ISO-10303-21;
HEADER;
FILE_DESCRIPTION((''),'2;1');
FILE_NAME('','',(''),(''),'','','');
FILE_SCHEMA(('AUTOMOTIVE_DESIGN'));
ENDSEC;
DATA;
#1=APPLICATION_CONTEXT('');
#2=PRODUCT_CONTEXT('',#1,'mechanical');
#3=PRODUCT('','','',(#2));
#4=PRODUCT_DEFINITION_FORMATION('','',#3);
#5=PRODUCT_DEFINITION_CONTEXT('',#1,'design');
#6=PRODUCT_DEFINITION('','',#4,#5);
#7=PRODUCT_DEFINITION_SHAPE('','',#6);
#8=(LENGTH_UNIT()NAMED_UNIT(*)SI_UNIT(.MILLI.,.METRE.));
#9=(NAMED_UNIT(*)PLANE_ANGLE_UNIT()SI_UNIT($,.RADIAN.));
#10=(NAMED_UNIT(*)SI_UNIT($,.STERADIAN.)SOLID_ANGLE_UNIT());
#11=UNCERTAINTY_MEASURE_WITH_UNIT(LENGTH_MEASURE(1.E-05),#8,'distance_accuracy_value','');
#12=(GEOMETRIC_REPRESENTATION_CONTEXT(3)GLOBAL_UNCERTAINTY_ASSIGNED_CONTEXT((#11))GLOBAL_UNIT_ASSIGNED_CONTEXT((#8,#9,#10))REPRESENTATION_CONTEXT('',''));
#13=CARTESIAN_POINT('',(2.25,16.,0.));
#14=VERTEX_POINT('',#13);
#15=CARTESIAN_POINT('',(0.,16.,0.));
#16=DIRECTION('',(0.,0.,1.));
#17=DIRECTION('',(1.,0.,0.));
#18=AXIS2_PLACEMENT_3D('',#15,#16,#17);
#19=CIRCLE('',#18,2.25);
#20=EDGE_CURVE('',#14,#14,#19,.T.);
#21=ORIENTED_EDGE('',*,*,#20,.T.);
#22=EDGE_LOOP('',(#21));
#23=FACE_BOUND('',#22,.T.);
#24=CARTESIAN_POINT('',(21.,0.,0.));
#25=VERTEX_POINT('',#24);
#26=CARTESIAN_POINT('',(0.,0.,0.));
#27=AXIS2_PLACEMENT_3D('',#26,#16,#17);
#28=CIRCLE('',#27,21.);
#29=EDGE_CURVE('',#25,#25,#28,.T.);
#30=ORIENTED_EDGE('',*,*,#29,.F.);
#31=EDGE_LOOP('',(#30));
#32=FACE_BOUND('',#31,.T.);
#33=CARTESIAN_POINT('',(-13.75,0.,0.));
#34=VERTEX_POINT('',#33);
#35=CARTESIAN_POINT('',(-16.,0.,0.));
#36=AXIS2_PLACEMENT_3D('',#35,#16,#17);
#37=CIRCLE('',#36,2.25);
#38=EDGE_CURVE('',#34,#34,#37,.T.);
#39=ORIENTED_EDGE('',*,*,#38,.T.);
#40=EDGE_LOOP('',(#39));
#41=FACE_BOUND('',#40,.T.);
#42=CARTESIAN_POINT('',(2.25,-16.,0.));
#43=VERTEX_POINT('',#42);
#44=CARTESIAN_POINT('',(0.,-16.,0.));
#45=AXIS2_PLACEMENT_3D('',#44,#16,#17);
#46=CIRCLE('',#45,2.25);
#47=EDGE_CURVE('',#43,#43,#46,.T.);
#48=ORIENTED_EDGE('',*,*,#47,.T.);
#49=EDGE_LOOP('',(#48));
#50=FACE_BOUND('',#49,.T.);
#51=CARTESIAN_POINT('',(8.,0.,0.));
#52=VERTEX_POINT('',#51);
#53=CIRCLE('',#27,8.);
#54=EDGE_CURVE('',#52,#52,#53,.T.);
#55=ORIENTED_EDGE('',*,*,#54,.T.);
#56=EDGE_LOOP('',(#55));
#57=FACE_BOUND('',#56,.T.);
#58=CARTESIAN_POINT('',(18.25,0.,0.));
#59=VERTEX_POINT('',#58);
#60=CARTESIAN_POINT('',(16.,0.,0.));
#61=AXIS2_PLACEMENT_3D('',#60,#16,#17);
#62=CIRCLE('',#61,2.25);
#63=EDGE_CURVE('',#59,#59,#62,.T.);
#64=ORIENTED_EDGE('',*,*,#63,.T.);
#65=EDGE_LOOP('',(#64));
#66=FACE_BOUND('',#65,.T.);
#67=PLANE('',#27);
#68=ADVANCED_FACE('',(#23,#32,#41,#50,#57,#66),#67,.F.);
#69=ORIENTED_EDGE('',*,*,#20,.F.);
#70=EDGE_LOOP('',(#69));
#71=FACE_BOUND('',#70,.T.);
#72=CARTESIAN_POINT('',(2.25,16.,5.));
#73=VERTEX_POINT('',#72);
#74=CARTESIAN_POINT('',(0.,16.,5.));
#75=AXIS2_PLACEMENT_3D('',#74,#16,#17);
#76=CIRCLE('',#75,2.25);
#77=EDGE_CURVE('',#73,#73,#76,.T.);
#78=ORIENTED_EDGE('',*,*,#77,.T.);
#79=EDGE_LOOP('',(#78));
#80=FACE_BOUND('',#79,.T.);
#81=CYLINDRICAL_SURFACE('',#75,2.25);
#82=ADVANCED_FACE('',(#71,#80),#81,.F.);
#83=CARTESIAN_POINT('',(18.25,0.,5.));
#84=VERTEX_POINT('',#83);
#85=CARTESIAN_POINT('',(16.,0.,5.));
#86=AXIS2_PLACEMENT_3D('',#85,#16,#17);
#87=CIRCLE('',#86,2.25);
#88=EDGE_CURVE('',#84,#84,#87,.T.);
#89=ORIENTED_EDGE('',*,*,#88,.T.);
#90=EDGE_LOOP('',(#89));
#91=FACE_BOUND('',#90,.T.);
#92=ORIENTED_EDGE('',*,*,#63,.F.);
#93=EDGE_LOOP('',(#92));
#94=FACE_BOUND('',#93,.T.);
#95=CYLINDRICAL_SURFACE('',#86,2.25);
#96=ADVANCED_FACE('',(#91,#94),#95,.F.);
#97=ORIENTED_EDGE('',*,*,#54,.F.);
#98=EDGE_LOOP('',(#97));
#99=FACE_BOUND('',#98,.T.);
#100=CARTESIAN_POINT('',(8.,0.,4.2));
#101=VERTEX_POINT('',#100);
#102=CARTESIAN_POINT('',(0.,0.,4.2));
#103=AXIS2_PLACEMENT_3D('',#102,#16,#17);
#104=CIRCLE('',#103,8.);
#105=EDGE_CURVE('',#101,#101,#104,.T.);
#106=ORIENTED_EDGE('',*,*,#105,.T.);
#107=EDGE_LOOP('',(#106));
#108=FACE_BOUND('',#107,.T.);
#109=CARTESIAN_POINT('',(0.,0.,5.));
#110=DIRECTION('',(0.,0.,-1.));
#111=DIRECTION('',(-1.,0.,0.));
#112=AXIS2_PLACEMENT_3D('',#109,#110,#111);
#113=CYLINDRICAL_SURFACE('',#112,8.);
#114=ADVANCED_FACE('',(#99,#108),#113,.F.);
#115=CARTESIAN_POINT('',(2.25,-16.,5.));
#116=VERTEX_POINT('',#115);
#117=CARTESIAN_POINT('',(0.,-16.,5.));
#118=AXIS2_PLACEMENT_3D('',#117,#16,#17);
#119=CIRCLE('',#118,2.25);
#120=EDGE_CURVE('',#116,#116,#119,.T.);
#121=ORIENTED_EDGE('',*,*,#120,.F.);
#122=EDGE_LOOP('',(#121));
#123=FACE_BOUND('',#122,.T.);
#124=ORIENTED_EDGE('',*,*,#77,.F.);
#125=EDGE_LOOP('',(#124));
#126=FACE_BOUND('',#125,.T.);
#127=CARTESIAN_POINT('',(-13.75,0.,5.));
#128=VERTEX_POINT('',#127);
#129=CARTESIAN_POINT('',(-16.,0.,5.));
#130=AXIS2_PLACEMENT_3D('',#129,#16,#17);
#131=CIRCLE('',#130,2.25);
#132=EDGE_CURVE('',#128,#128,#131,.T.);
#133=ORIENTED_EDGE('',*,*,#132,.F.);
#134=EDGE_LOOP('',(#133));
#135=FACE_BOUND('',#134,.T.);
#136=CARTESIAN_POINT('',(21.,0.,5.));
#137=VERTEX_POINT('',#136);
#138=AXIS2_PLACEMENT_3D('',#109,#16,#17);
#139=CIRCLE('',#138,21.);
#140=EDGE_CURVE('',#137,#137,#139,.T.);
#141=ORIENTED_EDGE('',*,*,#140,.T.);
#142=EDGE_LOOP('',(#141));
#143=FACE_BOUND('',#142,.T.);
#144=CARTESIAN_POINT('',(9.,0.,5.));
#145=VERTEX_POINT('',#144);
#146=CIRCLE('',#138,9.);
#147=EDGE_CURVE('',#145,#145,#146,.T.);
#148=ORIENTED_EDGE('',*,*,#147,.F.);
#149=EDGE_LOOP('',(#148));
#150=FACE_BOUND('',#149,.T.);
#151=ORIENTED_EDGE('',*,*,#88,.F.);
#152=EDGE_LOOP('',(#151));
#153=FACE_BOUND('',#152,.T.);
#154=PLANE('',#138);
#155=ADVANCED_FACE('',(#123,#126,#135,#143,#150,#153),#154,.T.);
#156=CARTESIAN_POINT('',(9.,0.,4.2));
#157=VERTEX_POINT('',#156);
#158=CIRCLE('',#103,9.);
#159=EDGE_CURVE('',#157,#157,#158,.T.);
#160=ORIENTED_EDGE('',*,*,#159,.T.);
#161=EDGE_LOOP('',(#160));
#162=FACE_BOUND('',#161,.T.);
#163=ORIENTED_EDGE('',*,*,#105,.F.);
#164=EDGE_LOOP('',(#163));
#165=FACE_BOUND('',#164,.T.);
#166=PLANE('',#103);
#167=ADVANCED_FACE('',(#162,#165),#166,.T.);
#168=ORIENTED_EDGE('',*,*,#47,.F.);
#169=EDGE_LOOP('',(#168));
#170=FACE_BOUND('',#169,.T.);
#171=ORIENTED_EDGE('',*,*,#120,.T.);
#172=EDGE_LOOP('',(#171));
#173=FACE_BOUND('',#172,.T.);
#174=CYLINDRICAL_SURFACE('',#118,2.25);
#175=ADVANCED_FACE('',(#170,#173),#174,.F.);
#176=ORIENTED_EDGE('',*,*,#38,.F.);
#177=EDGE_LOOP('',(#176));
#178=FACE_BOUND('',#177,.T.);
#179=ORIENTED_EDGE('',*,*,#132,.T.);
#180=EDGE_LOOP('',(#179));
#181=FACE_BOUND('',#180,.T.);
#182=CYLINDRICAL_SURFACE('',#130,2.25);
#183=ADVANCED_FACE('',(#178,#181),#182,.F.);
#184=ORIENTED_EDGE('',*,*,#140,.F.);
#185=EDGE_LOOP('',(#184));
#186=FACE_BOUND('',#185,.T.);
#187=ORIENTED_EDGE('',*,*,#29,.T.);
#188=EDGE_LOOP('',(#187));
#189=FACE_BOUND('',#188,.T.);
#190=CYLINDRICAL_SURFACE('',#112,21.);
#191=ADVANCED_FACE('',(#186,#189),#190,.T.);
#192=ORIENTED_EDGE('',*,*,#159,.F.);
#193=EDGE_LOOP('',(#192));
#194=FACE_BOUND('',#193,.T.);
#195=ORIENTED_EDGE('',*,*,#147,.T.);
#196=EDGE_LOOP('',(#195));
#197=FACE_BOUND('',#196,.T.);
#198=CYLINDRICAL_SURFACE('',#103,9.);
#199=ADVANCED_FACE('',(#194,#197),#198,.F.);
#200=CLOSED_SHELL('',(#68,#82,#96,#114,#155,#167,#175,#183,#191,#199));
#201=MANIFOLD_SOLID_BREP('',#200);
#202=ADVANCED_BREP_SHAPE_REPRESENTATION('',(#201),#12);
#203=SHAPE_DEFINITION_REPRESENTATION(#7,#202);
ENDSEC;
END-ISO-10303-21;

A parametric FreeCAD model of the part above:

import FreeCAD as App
import Part
import Sketcher
Q = App.Units.Quantity

doc = App.newDocument("Part")
body = doc.addObject("PartDesign::Body", "Body")

sketch1 = doc.addObject("Sketcher::SketchObject", "Sketch")
body.addObject(sketch1)
sketch1.AttachmentSupport = (doc.XY_Plane, [""])
sketch1.MapMode = "FlatFace"
sketch1.addGeometry([
    Part.Circle(App.Vector(0, 0, 0), App.Vector(0, 0, 1), 21),
    Part.Circle(App.Vector(0, 0, 0), App.Vector(0, 0, 1), 8),
], False)
sketch1.addConstraint([
    Sketcher.Constraint("Coincident", 0, 3, -1, 1),
    Sketcher.Constraint("Coincident", 1, 3, -1, 1),
    Sketcher.Constraint("Diameter", 0, Q("42 mm")),
    Sketcher.Constraint("Diameter", 1, Q("16 mm")),
])
pad1 = doc.addObject("PartDesign::Pad", "Pad")
body.addObject(pad1)
pad1.Profile = sketch1
pad1.Length = 5

sketch2 = doc.addObject("Sketcher::SketchObject", "Sketch001")
body.addObject(sketch2)
sketch2.AttachmentSupport = (doc.XY_Plane, [""])
sketch2.MapMode = "FlatFace"
sketch2.AttachmentOffset = App.Placement(App.Vector(0, 0, 5), App.Rotation())
sketch2.addGeometry([
    Part.Circle(App.Vector(0, 16, 0), App.Vector(0, 0, 1), 2.25),
    Part.Circle(App.Vector(-16, 0, 0), App.Vector(0, 0, 1), 2.25),
    Part.Circle(App.Vector(0, -16, 0), App.Vector(0, 0, 1), 2.25),
    Part.Circle(App.Vector(16, 0, 0), App.Vector(0, 0, 1), 2.25),
], False)
sketch2.addConstraint([
    Sketcher.Constraint("Equal", 0, 1),
    Sketcher.Constraint("Equal", 1, 2),
    Sketcher.Constraint("Equal", 2, 3),
    Sketcher.Constraint("Symmetric", 0, 3, 2, 3, -1, 1),
    Sketcher.Constraint("Symmetric", 1, 3, 3, 3, -1, 1),
    Sketcher.Constraint("PointOnObject", 0, 3, -2),
    Sketcher.Constraint("PointOnObject", 1, 3, -1),
    Sketcher.Constraint("Diameter", 0, Q("4.5 mm")),
    Sketcher.Constraint("DistanceY", -1, 1, 0, 3, Q("16 mm")),
    Sketcher.Constraint("DistanceX", 1, 3, -1, 1, Q("16 mm")),
])
doc.recompute()
hole = doc.addObject("PartDesign::Hole", "Hole")
body.addObject(hole)
hole.Profile = sketch2
hole.ThreadType = "None"
hole.Diameter = 4.5
hole.DepthType = "ThroughAll"

sketch3 = doc.addObject("Sketcher::SketchObject", "Sketch002")
body.addObject(sketch3)
sketch3.AttachmentSupport = (doc.XY_Plane, [""])
sketch3.MapMode = "FlatFace"
sketch3.AttachmentOffset = App.Placement(App.Vector(0, 0, 5), App.Rotation())
sketch3.addGeometry(Part.Circle(App.Vector(0, 0, 0), App.Vector(0, 0, 1), 9), False)
sketch3.addConstraint([
    Sketcher.Constraint("Coincident", 0, 3, -1, 1),
    Sketcher.Constraint("Diameter", 0, Q("18 mm")),
])
pocket1 = doc.addObject("PartDesign::Pocket", "Pocket")
body.addObject(pocket1)
pocket1.Profile = sketch3
pocket1.Length = 0.8

doc.recompute()
